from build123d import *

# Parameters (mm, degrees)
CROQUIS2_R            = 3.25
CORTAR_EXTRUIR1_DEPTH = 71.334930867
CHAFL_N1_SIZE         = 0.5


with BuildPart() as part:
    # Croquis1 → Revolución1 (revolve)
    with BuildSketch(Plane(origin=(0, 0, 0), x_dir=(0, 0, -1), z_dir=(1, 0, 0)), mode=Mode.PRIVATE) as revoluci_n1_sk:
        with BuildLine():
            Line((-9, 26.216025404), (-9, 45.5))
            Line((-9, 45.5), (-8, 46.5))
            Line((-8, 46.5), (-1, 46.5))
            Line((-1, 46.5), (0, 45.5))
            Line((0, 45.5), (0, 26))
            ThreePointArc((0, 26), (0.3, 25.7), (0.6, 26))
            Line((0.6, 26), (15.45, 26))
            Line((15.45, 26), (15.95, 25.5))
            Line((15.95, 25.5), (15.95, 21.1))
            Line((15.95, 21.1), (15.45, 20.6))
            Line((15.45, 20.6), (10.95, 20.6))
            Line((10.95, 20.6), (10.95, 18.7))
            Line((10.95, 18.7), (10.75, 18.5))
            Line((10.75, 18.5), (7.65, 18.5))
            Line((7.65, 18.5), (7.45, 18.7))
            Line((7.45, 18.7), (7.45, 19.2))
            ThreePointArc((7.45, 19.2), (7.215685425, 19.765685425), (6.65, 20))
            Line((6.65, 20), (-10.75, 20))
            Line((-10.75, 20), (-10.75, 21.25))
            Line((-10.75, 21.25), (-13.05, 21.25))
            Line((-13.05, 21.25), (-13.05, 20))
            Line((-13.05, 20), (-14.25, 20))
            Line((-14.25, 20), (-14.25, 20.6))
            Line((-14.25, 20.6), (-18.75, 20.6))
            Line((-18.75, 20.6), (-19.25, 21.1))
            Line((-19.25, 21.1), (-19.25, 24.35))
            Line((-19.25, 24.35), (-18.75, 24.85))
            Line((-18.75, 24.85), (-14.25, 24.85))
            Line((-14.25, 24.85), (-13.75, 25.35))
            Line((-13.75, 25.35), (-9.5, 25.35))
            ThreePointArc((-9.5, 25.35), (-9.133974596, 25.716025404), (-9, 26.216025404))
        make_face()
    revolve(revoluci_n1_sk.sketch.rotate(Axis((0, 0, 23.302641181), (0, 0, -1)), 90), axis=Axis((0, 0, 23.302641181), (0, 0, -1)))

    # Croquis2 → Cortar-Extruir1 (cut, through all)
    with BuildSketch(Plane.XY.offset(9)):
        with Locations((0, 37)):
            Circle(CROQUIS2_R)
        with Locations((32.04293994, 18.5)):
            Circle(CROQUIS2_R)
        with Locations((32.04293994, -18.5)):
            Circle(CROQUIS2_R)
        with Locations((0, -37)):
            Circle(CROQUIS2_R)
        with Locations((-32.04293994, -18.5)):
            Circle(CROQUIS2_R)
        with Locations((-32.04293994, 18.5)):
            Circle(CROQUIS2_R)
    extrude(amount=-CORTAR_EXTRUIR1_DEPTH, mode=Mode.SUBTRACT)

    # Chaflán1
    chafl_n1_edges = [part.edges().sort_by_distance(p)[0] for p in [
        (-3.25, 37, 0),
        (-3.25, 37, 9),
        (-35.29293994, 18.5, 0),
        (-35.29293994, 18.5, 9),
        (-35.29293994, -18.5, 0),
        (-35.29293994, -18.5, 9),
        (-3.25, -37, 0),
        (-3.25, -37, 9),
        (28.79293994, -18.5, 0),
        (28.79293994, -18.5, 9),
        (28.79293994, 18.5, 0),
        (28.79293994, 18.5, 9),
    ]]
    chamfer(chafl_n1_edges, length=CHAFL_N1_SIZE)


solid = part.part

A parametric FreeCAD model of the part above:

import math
import FreeCAD as App
import Part
import Sketcher

V = App.Vector
Q = App.Units.Quantity


def edges_at(feature, points):
    """Names of the edges that pass closest to the given points."""
    edges = feature.Shape.Edges
    near = lambda p: min(range(len(edges)), key=lambda i: edges[i].distToShape(Part.Vertex(*p))[0])
    return sorted({f"Edge{near(p) + 1}" for p in points})

doc = App.newDocument("Part")
params = doc.addObject("Spreadsheet::Sheet", "Params")
for row, (alias, value) in enumerate([
    ("sketch1_radius", "1 mm"),
    ("sketch1_radius2", "0.8 mm"),
    ("sketch1_radius3", "0.3 mm"),
    ("sketch1_height", "7 mm"),
    ("sketch1_width", "0.6 mm"),
    ("revolution_angle", "360 deg"),
    ("sketch2_diameter", "6.5 mm"),
    ("chamfer_size", "0.5 mm"),
], start=1):
    params.set(f"A{row}", alias)
    params.set(f"B{row}", "=" + value)
    params.setAlias(f"B{row}", alias)

body = doc.addObject("PartDesign::Body", "Body")

# Sketch on YZ plane
sketch1 = body.newObject("Sketcher::SketchObject", "Sketch")
sketch1.AttachmentSupport = (doc.getObject("YZ_Plane"), [""])
sketch1.MapMode = "FlatFace"
sketch1.addGeometry(Part.LineSegment(V(45.5, 9, 0), V(26.22, 9, 0)), False)
sketch1.addGeometry(Part.ArcOfCircle(Part.Circle(V(26.22, 10, 0), V(0, 0, 1), 1), math.radians(-150), math.radians(-90)), False)
sketch1.addGeometry(Part.LineSegment(V(25.35, 9.5, 0), V(25.35, 13.75, 0)), False)
sketch1.addGeometry(Part.LineSegment(V(25.35, 13.75, 0), V(24.85, 14.25, 0)), False)
sketch1.addGeometry(Part.LineSegment(V(24.85, 14.25, 0), V(24.85, 18.75, 0)), False)
sketch1.addGeometry(Part.LineSegment(V(24.85, 18.75, 0), V(24.35, 19.25, 0)), False)
sketch1.addGeometry(Part.LineSegment(V(24.35, 19.25, 0), V(21.1, 19.25, 0)), False)
sketch1.addGeometry(Part.LineSegment(V(21.1, 19.25, 0), V(20.6, 18.75, 0)), False)
sketch1.addGeometry(Part.LineSegment(V(20.6, 18.75, 0), V(20.6, 14.25, 0)), False)
sketch1.addGeometry(Part.LineSegment(V(20.6, 14.25, 0), V(20, 14.25, 0)), False)
sketch1.addGeometry(Part.LineSegment(V(20, 14.25, 0), V(20, 13.05, 0)), False)
sketch1.addGeometry(Part.LineSegment(V(20, 13.05, 0), V(21.25, 13.05, 0)), False)
sketch1.addGeometry(Part.LineSegment(V(21.25, 13.05, 0), V(21.25, 10.75, 0)), False)
sketch1.addGeometry(Part.LineSegment(V(21.25, 10.75, 0), V(20, 10.75, 0)), False)
sketch1.addGeometry(Part.LineSegment(V(20, 10.75, 0), V(20, -6.65, 0)), False)
sketch1.addGeometry(Part.ArcOfCircle(Part.Circle(V(19.2, -6.65, 0), V(0, 0, 1), 0.8), math.radians(-90), math.radians(0)), False)
sketch1.addGeometry(Part.LineSegment(V(19.2, -7.45, 0), V(18.7, -7.45, 0)), False)
sketch1.addGeometry(Part.LineSegment(V(18.7, -7.45, 0), V(18.5, -7.65, 0)), False)
sketch1.addGeometry(Part.LineSegment(V(18.5, -7.65, 0), V(18.5, -10.75, 0)), False)
sketch1.addGeometry(Part.LineSegment(V(18.5, -10.75, 0), V(18.7, -10.95, 0)), False)
sketch1.addGeometry(Part.LineSegment(V(18.7, -10.95, 0), V(20.6, -10.95, 0)), False)
sketch1.addGeometry(Part.LineSegment(V(20.6, -10.95, 0), V(20.6, -15.45, 0)), False)
sketch1.addGeometry(Part.LineSegment(V(20.6, -15.45, 0), V(21.1, -15.95, 0)), False)
sketch1.addGeometry(Part.LineSegment(V(21.1, -15.95, 0), V(25.5, -15.95, 0)), False)
sketch1.addGeometry(Part.LineSegment(V(25.5, -15.95, 0), V(26, -15.45, 0)), False)
sketch1.addGeometry(Part.LineSegment(V(26, -15.45, 0), V(26, -0.6, 0)), False)
sketch1.addGeometry(Part.ArcOfCircle(Part.Circle(V(26, -0.3, 0), V(0, 0, 1), 0.3), math.radians(90), math.radians(270)), False)
sketch1.addGeometry(Part.LineSegment(V(26, 0, 0), V(45.5, 0, 0)), False)
sketch1.addGeometry(Part.LineSegment(V(45.5, 0, 0), V(46.5, 1, 0)), False)
sketch1.addGeometry(Part.LineSegment(V(46.5, 1, 0), V(46.5, 8, 0)), False)
sketch1.addGeometry(Part.LineSegment(V(46.5, 8, 0), V(45.5, 9, 0)), False)
sketch1.addConstraint(Sketcher.Constraint("Tangent", 0, 2, 1, 2))
sketch1.addConstraint(Sketcher.Constraint("Coincident", 1, 1, 2, 1))
sketch1.addConstraint(Sketcher.Constraint("Coincident", 2, 2, 3, 1))
sketch1.addConstraint(Sketcher.Constraint("Coincident", 3, 2, 4, 1))
sketch1.addConstraint(Sketcher.Constraint("Coincident", 4, 2, 5, 1))
sketch1.addConstraint(Sketcher.Constraint("Coincident", 5, 2, 6, 1))
sketch1.addConstraint(Sketcher.Constraint("Coincident", 6, 2, 7, 1))
sketch1.addConstraint(Sketcher.Constraint("Coincident", 7, 2, 8, 1))
sketch1.addConstraint(Sketcher.Constraint("Coincident", 8, 2, 9, 1))
sketch1.addConstraint(Sketcher.Constraint("Coincident", 9, 2, 10, 1))
sketch1.addConstraint(Sketcher.Constraint("Coincident", 10, 2, 11, 1))
sketch1.addConstraint(Sketcher.Constraint("Coincident", 11, 2, 12, 1))
sketch1.addConstraint(Sketcher.Constraint("Coincident", 12, 2, 13, 1))
sketch1.addConstraint(Sketcher.Constraint("Coincident", 13, 2, 14, 1))
sketch1.addConstraint(Sketcher.Constraint("Tangent", 14, 2, 15, 2))
sketch1.addConstraint(Sketcher.Constraint("Tangent", 15, 1, 16, 1))
sketch1.addConstraint(Sketcher.Constraint("Coincident", 16, 2, 17, 1))
sketch1.addConstraint(Sketcher.Constraint("Coincident", 17, 2, 18, 1))
sketch1.addConstraint(Sketcher.Constraint("Coincident", 18, 2, 19, 1))
sketch1.addConstraint(Sketcher.Constraint("Coincident", 19, 2, 20, 1))
sketch1.addConstraint(Sketcher.Constraint("Coincident", 20, 2, 21, 1))
sketch1.addConstraint(Sketcher.Constraint("Coincident", 21, 2, 22, 1))
sketch1.addConstraint(Sketcher.Constraint("Coincident", 22, 2, 23, 1))
sketch1.addConstraint(Sketcher.Constraint("Coincident", 23, 2, 24, 1))
sketch1.addConstraint(Sketcher.Constraint("Coincident", 24, 2, 25, 1))
sketch1.addConstraint(Sketcher.Constraint("Coincident", 25, 2, 26, 2))
sketch1.addConstraint(Sketcher.Constraint("Tangent", 26, 1, 27, 1))
sketch1.addConstraint(Sketcher.Constraint("Coincident", 27, 2, 28, 1))
sketch1.addConstraint(Sketcher.Constraint("Coincident", 28, 2, 29, 1))
sketch1.addConstraint(Sketcher.Constraint("Coincident", 29, 2, 30, 1))
sketch1.addConstraint(Sketcher.Constraint("Coincident", 30, 2, 0, 1))
sketch1.addConstraint(Sketcher.Constraint("Horizontal", 0))
sketch1.addConstraint(Sketcher.Constraint("Vertical", 2))
sketch1.addConstraint(Sketcher.Constraint("Vertical", 4))
sketch1.addConstraint(Sketcher.Constraint("Horizontal", 6))
sketch1.addConstraint(Sketcher.Constraint("Vertical", 8))
sketch1.addConstraint(Sketcher.Constraint("Horizontal", 9))
sketch1.addConstraint(Sketcher.Constraint("Vertical", 10))
sketch1.addConstraint(Sketcher.Constraint("Horizontal", 11))
sketch1.addConstraint(Sketcher.Constraint("Vertical", 12))
sketch1.addConstraint(Sketcher.Constraint("Horizontal", 13))
sketch1.addConstraint(Sketcher.Constraint("Vertical", 14))
sketch1.addConstraint(Sketcher.Constraint("Horizontal", 16))
sketch1.addConstraint(Sketcher.Constraint("Vertical", 18))
sketch1.addConstraint(Sketcher.Constraint("Horizontal", 20))
sketch1.addConstraint(Sketcher.Constraint("Vertical", 21))
sketch1.addConstraint(Sketcher.Constraint("Horizontal", 23))
sketch1.addConstraint(Sketcher.Constraint("Vertical", 25))
sketch1.addConstraint(Sketcher.Constraint("Horizontal", 27))
sketch1.addConstraint(Sketcher.Constraint("Vertical", 29))
sketch1.addConstraint(Sketcher.Constraint("PointOnObject", 26, 1, -1))
sketch1.addConstraint(Sketcher.Constraint("Parallel", 3, 5))
sketch1.addConstraint(Sketcher.Constraint("Perpendicular", 5, 7))
sketch1.addConstraint(Sketcher.Constraint("Parallel", 7, 17))
sketch1.addConstraint(Sketcher.Constraint("Perpendicular", 17, 19))
sketch1.addConstraint(Sketcher.Constraint("Parallel", 19, 22))
sketch1.addConstraint(Sketcher.Constraint("Perpendicular", 22, 24))
sketch1.addConstraint(Sketcher.Constraint("Parallel", 24, 28))
sketch1.addConstraint(Sketcher.Constraint("Perpendicular", 28, 30))
sketch1.addConstraint(Sketcher.Constraint("Horizontal", 4, 2, 7, 2))
sketch1.addConstraint(Sketcher.Constraint("Horizontal", 3, 2, 8, 2))
sketch1.addConstraint(Sketcher.Constraint("Horizontal", 21, 2, 24, 2))
sketch1.addConstraint(Sketcher.Constraint("Vertical", 10, 2, 13, 2))
sketch1.addConstraint(Sketcher.Constraint("Vertical", 16, 2, 19, 2))
sketch1.addConstraint(Sketcher.Constraint("Vertical", 8, 2, 20, 2))
sketch1.addConstraint(Sketcher.Constraint("Vertical", 6, 2, 22, 2))
sketch1.addConstraint(Sketcher.Constraint("Vertical", 26, 3, 24, 2))
sketch1.addConstraint(Sketcher.Constraint("Vertical", 27, 2, 30, 2))
sketch1.addConstraint(Sketcher.Constraint("Equal", 8, 21))
sketch1.addConstraint(Sketcher.Constraint("Equal", 3, 5))
sketch1.addConstraint(Sketcher.Constraint("Equal", 5, 7))
sketch1.addConstraint(Sketcher.Constraint("Radius", 1, Q("1 mm")))
sketch1.addConstraint(Sketcher.Constraint("Radius", 15, Q("0.8 mm")))
sketch1.addConstraint(Sketcher.Constraint("Radius", 26, Q("0.3 mm")))
sketch1.addConstraint(Sketcher.Constraint("DistanceY", 29, 1, 29, 2, Q("7 mm")))
sketch1.addConstraint(Sketcher.Constraint("DistanceX", 9, 2, 9, 1, Q("0.6 mm")))
sketch1.addConstraint(Sketcher.Constraint("DistanceX", 16, 2, 16, 1, Q("0.5 mm")))
sketch1.addConstraint(Sketcher.Constraint("DistanceX", 23, 1, 23, 2, Q("4.4 mm")))
sketch1.addConstraint(Sketcher.Constraint("DistanceX", 27, 1, 27, 2, Q("19.5 mm")))
sketch1.addConstraint(Sketcher.Constraint("DistanceY", 4, 1, 4, 2, Q("4.5 mm")))
sketch1.addConstraint(Sketcher.Constraint("DistanceY", 10, 2, 10, 1, Q("1.2 mm")))
sketch1.addConstraint(Sketcher.Constraint("DistanceY", 12, 2, 12, 1, Q("2.3 mm")))
sketch1.addConstraint(Sketcher.Constraint("DistanceY", 14, 2, 14, 1, Q("17.4 mm")))
sketch1.addConstraint(Sketcher.Constraint("DistanceY", 18, 2, 18, 1, Q("3.1 mm")))
sketch1.addConstraint(Sketcher.Constraint("DistanceY", -1, 1, 1, 3, Q("10 mm")))
sketch1.addConstraint(Sketcher.Constraint("DistanceX", -1, 1, 26, 3, Q("26 mm")))
sketch1.addConstraint(Sketcher.Constraint("DistanceX", -1, 1, 9, 2, Q("20 mm")))
sketch1.addConstraint(Sketcher.Constraint("DistanceY", 17, 2, 15, 3, Q("1 mm")))
sketch1.addConstraint(Sketcher.Constraint("DistanceX", 6, 2, 6, 1, Q("3.25 mm")))
sketch1.addConstraint(Sketcher.Constraint("DistanceX", 11, 1, 11, 2, Q("1.25 mm")))
sketch1.addConstraint(Sketcher.Constraint("DistanceY", 2, 1, 2, 2, Q("4.25 mm")))
sketch1.addConstraint(Sketcher.Constraint("DistanceY", 25, 1, 25, 2, Q("14.85 mm")))
sketch1.setExpression("Constraints[71]", "Params.sketch1_radius")
sketch1.setExpression("Constraints[72]", "Params.sketch1_radius2")
sketch1.setExpression("Constraints[73]", "Params.sketch1_radius3")
sketch1.setExpression("Constraints[74]", "Params.sketch1_height")
sketch1.setExpression("Constraints[75]", "Params.sketch1_width")
revolution = body.newObject("PartDesign::Revolution", "Revolution")
revolution.Profile = sketch1
revolution.ReferenceAxis = (sketch1, ["V_Axis"])
revolution.setExpression("Angle", "Params.revolution_angle")

# Sketch on XY plane
sketch2 = body.newObject("Sketcher::SketchObject", "Sketch001")
sketch2.AttachmentSupport = (doc.getObject("XY_Plane"), [""])
sketch2.MapMode = "FlatFace"
sketch2.AttachmentOffset = App.Placement(V(0, 0, 9), App.Rotation())
sketch2.addGeometry(Part.Circle(V(0, 37, 0), V(0, 0, 1), 3.2), False)
sketch2.addGeometry(Part.Circle(V(32, 18.5, 0), V(0, 0, 1), 3.2), False)
sketch2.addGeometry(Part.Circle(V(32, -18.5, 0), V(0, 0, 1), 3.2), False)
sketch2.addGeometry(Part.Circle(V(0, -37, 0), V(0, 0, 1), 3.2), False)
sketch2.addGeometry(Part.Circle(V(-32, -18.5, 0), V(0, 0, 1), 3.2), False)
sketch2.addGeometry(Part.Circle(V(-32, 18.5, 0), V(0, 0, 1), 3.2), False)
sketch2.addConstraint(Sketcher.Constraint("Equal", 0, 1))
sketch2.addConstraint(Sketcher.Constraint("Equal", 1, 2))
sketch2.addConstraint(Sketcher.Constraint("Equal", 2, 3))
sketch2.addConstraint(Sketcher.Constraint("Equal", 3, 4))
sketch2.addConstraint(Sketcher.Constraint("Equal", 4, 5))
sketch2.addConstraint(Sketcher.Constraint("Symmetric", 0, 3, 3, 3, -1, 1))
sketch2.addConstraint(Sketcher.Constraint("Symmetric", 1, 3, 4, 3, -1, 1))
sketch2.addConstraint(Sketcher.Constraint("Symmetric", 2, 3, 5, 3, -1, 1))
sketch2.addConstraint(Sketcher.Constraint("Symmetric", 2, 3, 4, 3, -2))
sketch2.addConstraint(Sketcher.Constraint("PointOnObject", 0, 3, -2))
sketch2.addConstraint(Sketcher.Constraint("Diameter", 0, Q("6.5 mm")))
sketch2.addConstraint(Sketcher.Constraint("DistanceY", -1, 1, 0, 3, Q("37 mm")))
sketch2.addConstraint(Sketcher.Constraint("DistanceY", 2, 3, 1, 3, Q("37 mm")))
sketch2.addConstraint(Sketcher.Constraint("DistanceX", -1, 1, 1, 3, Q("32.04294 mm")))
sketch2.setExpression("Constraints[10]", "Params.sketch2_diameter")
pocket1 = body.newObject("PartDesign::Pocket", "Pocket")
pocket1.Profile = sketch2
pocket1.Type = "ThroughAll"
doc.recompute()

chamfer = body.newObject("PartDesign::Chamfer", "Chamfer")
chamfer.Base = (pocket1, edges_at(pocket1, [
    (-3.25, 37, 0),
    (-3.25, 37, 9),
    (-35.293, 18.5, 0),
    (-35.293, 18.5, 9),
    (-35.293, -18.5, 0),
    (-35.293, -18.5, 9),
    (-3.25, -37, 0),
    (-3.25, -37, 9),
    (28.793, -18.5, 0),
    (28.793, -18.5, 9),
    (28.793, 18.5, 0),
    (28.793, 18.5, 9),
]))
chamfer.setExpression("Size", "Params.chamfer_size")

doc.recompute()
